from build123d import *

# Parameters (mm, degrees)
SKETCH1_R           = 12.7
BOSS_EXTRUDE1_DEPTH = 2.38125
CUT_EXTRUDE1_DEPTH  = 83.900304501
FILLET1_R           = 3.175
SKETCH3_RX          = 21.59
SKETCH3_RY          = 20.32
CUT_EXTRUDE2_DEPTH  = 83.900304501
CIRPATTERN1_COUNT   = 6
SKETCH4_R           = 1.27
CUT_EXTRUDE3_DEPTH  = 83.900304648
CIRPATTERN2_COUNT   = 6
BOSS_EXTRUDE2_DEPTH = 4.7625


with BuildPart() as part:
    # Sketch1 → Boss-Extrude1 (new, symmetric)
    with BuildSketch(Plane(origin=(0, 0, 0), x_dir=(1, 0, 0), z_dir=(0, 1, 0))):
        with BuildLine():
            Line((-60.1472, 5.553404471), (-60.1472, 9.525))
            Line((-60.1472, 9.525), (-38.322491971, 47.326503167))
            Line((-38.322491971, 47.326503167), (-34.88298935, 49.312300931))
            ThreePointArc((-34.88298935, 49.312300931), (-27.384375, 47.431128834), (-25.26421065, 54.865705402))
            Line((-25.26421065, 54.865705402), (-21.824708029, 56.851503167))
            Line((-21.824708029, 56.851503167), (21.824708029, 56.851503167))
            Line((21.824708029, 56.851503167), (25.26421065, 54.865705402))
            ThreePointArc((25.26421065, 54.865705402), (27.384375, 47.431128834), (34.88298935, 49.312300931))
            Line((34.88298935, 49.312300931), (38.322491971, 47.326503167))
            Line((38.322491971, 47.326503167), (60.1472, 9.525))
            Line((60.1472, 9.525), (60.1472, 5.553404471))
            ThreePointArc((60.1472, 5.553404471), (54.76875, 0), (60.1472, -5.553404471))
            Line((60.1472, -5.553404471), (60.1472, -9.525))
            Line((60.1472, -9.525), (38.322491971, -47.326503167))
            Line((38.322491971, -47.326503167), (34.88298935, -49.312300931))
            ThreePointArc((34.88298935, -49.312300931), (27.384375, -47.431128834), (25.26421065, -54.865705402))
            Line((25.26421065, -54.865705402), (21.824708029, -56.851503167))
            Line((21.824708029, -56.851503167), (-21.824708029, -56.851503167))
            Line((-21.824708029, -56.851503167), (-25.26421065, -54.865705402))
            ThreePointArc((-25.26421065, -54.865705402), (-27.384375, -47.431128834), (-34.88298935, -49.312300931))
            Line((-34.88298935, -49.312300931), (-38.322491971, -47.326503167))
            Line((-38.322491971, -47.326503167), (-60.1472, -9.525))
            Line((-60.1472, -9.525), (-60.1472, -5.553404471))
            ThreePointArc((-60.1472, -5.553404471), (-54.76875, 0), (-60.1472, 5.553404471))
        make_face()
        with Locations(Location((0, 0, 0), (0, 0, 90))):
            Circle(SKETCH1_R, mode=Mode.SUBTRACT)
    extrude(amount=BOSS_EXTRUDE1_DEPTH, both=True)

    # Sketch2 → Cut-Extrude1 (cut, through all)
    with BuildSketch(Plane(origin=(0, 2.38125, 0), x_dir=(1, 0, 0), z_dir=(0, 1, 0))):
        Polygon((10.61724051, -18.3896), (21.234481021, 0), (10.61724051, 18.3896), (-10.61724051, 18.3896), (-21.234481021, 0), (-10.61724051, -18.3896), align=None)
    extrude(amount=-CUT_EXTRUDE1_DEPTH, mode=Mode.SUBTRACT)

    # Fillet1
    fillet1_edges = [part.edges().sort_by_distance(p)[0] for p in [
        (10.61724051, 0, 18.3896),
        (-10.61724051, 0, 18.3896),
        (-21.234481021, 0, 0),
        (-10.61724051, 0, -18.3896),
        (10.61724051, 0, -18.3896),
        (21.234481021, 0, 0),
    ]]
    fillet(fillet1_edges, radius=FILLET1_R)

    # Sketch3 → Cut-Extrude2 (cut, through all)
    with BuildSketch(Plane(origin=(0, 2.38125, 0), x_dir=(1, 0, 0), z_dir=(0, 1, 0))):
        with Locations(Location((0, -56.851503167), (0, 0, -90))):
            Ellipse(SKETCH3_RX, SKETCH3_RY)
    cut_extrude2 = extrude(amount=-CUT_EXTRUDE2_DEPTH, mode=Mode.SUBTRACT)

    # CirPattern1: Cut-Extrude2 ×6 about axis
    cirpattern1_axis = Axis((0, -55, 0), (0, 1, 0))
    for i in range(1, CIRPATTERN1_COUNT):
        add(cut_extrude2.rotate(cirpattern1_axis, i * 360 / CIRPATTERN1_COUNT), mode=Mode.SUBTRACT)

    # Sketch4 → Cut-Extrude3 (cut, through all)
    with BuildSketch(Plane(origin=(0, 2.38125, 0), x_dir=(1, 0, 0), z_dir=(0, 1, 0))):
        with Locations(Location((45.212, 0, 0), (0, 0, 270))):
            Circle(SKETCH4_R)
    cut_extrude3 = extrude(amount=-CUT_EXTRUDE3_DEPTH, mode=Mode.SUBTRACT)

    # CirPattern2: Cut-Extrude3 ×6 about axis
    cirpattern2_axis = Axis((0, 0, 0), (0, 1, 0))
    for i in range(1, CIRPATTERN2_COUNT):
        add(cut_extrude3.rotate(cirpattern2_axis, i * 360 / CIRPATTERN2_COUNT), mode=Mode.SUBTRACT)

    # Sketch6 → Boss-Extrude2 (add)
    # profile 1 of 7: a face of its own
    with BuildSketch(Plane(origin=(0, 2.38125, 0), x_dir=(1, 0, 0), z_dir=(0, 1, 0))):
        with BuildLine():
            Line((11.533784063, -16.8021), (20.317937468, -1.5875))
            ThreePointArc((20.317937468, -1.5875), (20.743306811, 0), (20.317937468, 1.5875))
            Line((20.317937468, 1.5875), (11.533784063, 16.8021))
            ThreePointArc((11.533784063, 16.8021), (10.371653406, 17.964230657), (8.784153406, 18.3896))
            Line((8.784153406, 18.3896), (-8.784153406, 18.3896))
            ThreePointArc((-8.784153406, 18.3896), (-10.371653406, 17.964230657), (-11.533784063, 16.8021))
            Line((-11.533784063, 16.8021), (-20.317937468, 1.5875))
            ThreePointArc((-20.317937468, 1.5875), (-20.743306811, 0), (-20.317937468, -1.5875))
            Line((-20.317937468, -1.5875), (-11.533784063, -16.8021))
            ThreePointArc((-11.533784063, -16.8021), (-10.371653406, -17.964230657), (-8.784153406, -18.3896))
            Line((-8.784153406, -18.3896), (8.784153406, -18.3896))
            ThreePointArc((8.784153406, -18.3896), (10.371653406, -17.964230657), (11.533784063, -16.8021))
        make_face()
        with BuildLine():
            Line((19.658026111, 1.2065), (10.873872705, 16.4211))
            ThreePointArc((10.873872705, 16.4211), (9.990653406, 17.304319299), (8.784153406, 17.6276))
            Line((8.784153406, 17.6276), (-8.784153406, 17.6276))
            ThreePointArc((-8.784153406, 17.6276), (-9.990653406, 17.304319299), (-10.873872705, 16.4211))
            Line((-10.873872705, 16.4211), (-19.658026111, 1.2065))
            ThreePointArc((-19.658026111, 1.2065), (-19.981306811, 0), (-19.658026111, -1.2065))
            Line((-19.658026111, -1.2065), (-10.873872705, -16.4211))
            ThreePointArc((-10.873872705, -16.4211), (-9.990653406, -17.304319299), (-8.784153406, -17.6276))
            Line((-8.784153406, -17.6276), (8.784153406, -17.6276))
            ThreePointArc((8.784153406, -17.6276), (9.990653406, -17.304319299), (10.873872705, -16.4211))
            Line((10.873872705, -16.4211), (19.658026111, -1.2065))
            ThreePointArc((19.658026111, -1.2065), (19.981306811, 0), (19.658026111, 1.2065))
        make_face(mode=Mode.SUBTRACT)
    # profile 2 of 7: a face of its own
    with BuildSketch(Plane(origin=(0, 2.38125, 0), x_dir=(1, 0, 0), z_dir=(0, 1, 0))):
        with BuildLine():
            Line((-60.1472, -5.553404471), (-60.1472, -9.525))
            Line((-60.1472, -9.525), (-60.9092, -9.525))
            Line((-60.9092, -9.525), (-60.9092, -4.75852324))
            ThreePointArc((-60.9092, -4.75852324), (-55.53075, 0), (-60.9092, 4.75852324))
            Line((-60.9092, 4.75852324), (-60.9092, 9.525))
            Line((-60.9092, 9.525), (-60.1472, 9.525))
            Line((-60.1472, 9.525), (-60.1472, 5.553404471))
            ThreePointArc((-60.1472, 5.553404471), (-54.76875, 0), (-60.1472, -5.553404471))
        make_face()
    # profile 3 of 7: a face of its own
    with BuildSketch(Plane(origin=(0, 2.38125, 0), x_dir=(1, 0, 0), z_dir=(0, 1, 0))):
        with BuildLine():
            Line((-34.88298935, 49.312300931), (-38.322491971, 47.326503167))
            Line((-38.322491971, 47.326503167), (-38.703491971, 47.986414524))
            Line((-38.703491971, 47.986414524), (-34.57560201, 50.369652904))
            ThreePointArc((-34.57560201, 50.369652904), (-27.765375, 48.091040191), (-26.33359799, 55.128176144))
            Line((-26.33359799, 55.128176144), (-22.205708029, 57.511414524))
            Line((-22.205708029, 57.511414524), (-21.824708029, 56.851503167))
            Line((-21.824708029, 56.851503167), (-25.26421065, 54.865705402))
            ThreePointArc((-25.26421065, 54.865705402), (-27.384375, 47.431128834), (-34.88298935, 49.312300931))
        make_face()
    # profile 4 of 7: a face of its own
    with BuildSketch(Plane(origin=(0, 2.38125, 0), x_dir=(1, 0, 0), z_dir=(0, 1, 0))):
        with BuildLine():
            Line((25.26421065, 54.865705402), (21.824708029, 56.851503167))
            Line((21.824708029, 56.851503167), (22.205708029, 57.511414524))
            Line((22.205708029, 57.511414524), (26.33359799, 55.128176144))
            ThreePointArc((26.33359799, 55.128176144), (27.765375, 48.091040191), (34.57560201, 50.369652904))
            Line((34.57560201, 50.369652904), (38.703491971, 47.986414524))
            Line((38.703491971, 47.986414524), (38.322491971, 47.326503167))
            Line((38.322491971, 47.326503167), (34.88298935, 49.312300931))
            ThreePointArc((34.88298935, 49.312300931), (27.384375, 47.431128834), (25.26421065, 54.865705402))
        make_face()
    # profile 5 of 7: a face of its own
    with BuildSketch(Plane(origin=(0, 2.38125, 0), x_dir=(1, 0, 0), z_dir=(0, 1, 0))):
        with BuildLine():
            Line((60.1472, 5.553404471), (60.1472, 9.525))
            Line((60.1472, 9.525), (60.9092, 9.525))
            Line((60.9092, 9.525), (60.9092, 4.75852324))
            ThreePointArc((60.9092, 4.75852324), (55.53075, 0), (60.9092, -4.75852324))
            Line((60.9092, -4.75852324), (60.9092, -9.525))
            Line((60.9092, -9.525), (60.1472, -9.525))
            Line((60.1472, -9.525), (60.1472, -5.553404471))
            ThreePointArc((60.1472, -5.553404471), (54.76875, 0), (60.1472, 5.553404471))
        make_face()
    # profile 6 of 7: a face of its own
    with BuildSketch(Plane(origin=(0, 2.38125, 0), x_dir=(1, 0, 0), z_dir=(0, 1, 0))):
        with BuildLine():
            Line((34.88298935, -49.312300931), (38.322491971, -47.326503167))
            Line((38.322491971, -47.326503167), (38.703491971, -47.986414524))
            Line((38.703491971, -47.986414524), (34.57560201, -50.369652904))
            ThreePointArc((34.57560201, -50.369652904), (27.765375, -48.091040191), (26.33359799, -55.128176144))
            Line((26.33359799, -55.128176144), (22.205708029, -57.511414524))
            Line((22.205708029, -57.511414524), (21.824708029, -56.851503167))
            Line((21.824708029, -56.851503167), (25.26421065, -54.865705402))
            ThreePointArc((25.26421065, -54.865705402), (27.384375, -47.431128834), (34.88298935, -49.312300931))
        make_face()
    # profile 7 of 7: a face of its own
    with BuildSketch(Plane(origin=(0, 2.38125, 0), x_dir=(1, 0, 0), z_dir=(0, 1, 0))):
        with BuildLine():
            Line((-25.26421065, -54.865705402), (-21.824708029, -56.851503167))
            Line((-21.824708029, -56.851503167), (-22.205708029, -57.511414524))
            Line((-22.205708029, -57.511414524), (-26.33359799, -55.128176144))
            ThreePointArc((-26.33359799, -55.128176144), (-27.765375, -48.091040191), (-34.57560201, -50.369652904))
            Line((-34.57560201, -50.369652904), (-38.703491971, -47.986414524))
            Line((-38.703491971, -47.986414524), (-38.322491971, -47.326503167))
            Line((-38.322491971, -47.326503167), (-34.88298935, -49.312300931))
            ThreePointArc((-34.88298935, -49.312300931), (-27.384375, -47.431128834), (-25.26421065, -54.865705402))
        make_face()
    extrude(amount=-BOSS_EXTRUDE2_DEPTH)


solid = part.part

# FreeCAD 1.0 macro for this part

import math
import FreeCAD as App
import Part
import Sketcher
from FreeCAD import Vector
Q = App.Units.Quantity


def edges_at(feature, points):
    """Names of the edges that pass closest to the given points."""
    edges = feature.Shape.Edges
    near = lambda p: min(range(len(edges)), key=lambda i: edges[i].distToShape(Part.Vertex(*p))[0])
    return sorted({f"Edge{near(p) + 1}" for p in points})

doc = App.newDocument("Part")
params = doc.addObject("Spreadsheet::Sheet", "Params")
for row, (alias, value) in enumerate([
    ("sketch1_diameter", "1 in"),
    ("sketch1_radius", "0.21875 in"),
    ("pad1_length", "0.1875 in"),
    ("fillet_radius", "0.125 in"),
    ("sketch4_diameter", "0.1 in"),
    ("sketch5_radius", "0.125 in"),
    ("sketch5_radius2", "0.095 in"),
    ("sketch5_radius3", "0.21875 in"),
    ("sketch5_width", "0.03 in"),
    ("sketch5_length", "0.03 in"),
    ("pad2_length", "0.1875 in"),
], start=1):
    params.set(f"A{row}", alias)
    params.set(f"B{row}", "=" + value)
    params.setAlias(f"B{row}", alias)

body = doc.addObject("PartDesign::Body", "Body")

sketch1 = body.newObject("Sketcher::SketchObject", "Sketch")
sketch1.AttachmentSupport = (doc.getObject("XZ_Plane"), [""])
sketch1.MapMode = "FlatFace"
sketch1.addGeometry(Part.LineSegment(Vector(-60.1472, -9.525, 0), Vector(-60.1472, -5.553404, 0)), False)
sketch1.addGeometry(Part.ArcOfCircle(Part.Circle(Vector(-60.325, 0, 0), Vector(0, 0, 1), 5.55625), math.radians(-88.166222), math.radians(88.166222)), False)
sketch1.addGeometry(Part.LineSegment(Vector(-60.1472, 5.553404, 0), Vector(-60.1472, 9.525, 0)), False)
sketch1.addGeometry(Part.LineSegment(Vector(-60.1472, 9.525, 0), Vector(-38.322492, 47.326503, 0)), False)
sketch1.addGeometry(Part.LineSegment(Vector(-38.322492, 47.326503, 0), Vector(-34.882989, 49.312301, 0)), False)
sketch1.addGeometry(Part.ArcOfCircle(Part.Circle(Vector(-30.1625, 52.242982, 0), Vector(0, 0, 1), 5.55625), math.radians(-148.166222), math.radians(28.166222)), False)
sketch1.addGeometry(Part.LineSegment(Vector(-25.264211, 54.865705, 0), Vector(-21.824708, 56.851503, 0)), False)
sketch1.addGeometry(Part.LineSegment(Vector(-21.824708, 56.851503, 0), Vector(21.824708, 56.851503, 0)), False)
sketch1.addGeometry(Part.LineSegment(Vector(21.824708, 56.851503, 0), Vector(25.264211, 54.865705, 0)), False)
sketch1.addGeometry(Part.ArcOfCircle(Part.Circle(Vector(30.1625, 52.242982, 0), Vector(0, 0, 1), 5.55625), math.radians(151.833778), math.radians(328.166222)), False)
sketch1.addGeometry(Part.LineSegment(Vector(34.882989, 49.312301, 0), Vector(38.322492, 47.326503, 0)), False)
sketch1.addGeometry(Part.LineSegment(Vector(38.322492, 47.326503, 0), Vector(60.1472, 9.525, 0)), False)
sketch1.addGeometry(Part.LineSegment(Vector(60.1472, 9.525, 0), Vector(60.1472, 5.553404, 0)), False)
sketch1.addGeometry(Part.ArcOfCircle(Part.Circle(Vector(60.325, 0, 0), Vector(0, 0, 1), 5.55625), math.radians(91.833778), math.radians(268.166222)), False)
sketch1.addGeometry(Part.LineSegment(Vector(60.1472, -5.553404, 0), Vector(60.1472, -9.525, 0)), False)
sketch1.addGeometry(Part.LineSegment(Vector(60.1472, -9.525, 0), Vector(38.322492, -47.326503, 0)), False)
sketch1.addGeometry(Part.LineSegment(Vector(38.322492, -47.326503, 0), Vector(34.882989, -49.312301, 0)), False)
sketch1.addGeometry(Part.ArcOfCircle(Part.Circle(Vector(30.1625, -52.242982, 0), Vector(0, 0, 1), 5.55625), math.radians(31.833778), math.radians(208.166222)), False)
sketch1.addGeometry(Part.LineSegment(Vector(25.264211, -54.865705, 0), Vector(21.824708, -56.851503, 0)), False)
sketch1.addGeometry(Part.LineSegment(Vector(21.824708, -56.851503, 0), Vector(-21.824708, -56.851503, 0)), False)
sketch1.addGeometry(Part.LineSegment(Vector(-21.824708, -56.851503, 0), Vector(-25.264211, -54.865705, 0)), False)
sketch1.addGeometry(Part.ArcOfCircle(Part.Circle(Vector(-30.1625, -52.242982, 0), Vector(0, 0, 1), 5.55625), math.radians(-28.166222), math.radians(148.166222)), False)
sketch1.addGeometry(Part.LineSegment(Vector(-34.882989, -49.312301, 0), Vector(-38.322492, -47.326503, 0)), False)
sketch1.addGeometry(Part.LineSegment(Vector(-38.322492, -47.326503, 0), Vector(-60.1472, -9.525, 0)), False)
sketch1.addGeometry(Part.Circle(Vector(0, 0, 0), Vector(0, 0, 1), 12.7), False)
sketch1.addConstraint(Sketcher.Constraint("Coincident", 0, 2, 1, 1))
sketch1.addConstraint(Sketcher.Constraint("Coincident", 1, 2, 2, 1))
sketch1.addConstraint(Sketcher.Constraint("Coincident", 2, 2, 3, 1))
sketch1.addConstraint(Sketcher.Constraint("Coincident", 3, 2, 4, 1))
sketch1.addConstraint(Sketcher.Constraint("Coincident", 4, 2, 5, 1))
sketch1.addConstraint(Sketcher.Constraint("Coincident", 5, 2, 6, 1))
sketch1.addConstraint(Sketcher.Constraint("Coincident", 6, 2, 7, 1))
sketch1.addConstraint(Sketcher.Constraint("Coincident", 7, 2, 8, 1))
sketch1.addConstraint(Sketcher.Constraint("Coincident", 8, 2, 9, 1))
sketch1.addConstraint(Sketcher.Constraint("Coincident", 9, 2, 10, 1))
sketch1.addConstraint(Sketcher.Constraint("Coincident", 10, 2, 11, 1))
sketch1.addConstraint(Sketcher.Constraint("Coincident", 11, 2, 12, 1))
sketch1.addConstraint(Sketcher.Constraint("Coincident", 12, 2, 13, 1))
sketch1.addConstraint(Sketcher.Constraint("Coincident", 13, 2, 14, 1))
sketch1.addConstraint(Sketcher.Constraint("Coincident", 14, 2, 15, 1))
sketch1.addConstraint(Sketcher.Constraint("Coincident", 15, 2, 16, 1))
sketch1.addConstraint(Sketcher.Constraint("Coincident", 16, 2, 17, 1))
sketch1.addConstraint(Sketcher.Constraint("Coincident", 17, 2, 18, 1))
sketch1.addConstraint(Sketcher.Constraint("Coincident", 18, 2, 19, 1))
sketch1.addConstraint(Sketcher.Constraint("Coincident", 19, 2, 20, 1))
sketch1.addConstraint(Sketcher.Constraint("Coincident", 20, 2, 21, 1))
sketch1.addConstraint(Sketcher.Constraint("Coincident", 21, 2, 22, 1))
sketch1.addConstraint(Sketcher.Constraint("Coincident", 22, 2, 23, 1))
sketch1.addConstraint(Sketcher.Constraint("Coincident", 23, 2, 0, 1))
sketch1.addConstraint(Sketcher.Constraint("Vertical", 0))
sketch1.addConstraint(Sketcher.Constraint("Vertical", 2))
sketch1.addConstraint(Sketcher.Constraint("Horizontal", 7))
sketch1.addConstraint(Sketcher.Constraint("Vertical", 12))
sketch1.addConstraint(Sketcher.Constraint("Vertical", 14))
sketch1.addConstraint(Sketcher.Constraint("Horizontal", 19))
sketch1.addConstraint(Sketcher.Constraint("Coincident", 24, 3, -1, 1))
sketch1.addConstraint(Sketcher.Constraint("Equal", 1, 5))
sketch1.addConstraint(Sketcher.Constraint("Equal", 5, 9))
sketch1.addConstraint(Sketcher.Constraint("Equal", 9, 13))
sketch1.addConstraint(Sketcher.Constraint("Equal", 13, 17))
sketch1.addConstraint(Sketcher.Constraint("Equal", 17, 21))
sketch1.addConstraint(Sketcher.Constraint("Symmetric", 1, 3, 13, 3, -1, 1))
sketch1.addConstraint(Sketcher.Constraint("Symmetric", 5, 3, 17, 3, -1, 1))
sketch1.addConstraint(Sketcher.Constraint("Symmetric", 9, 3, 21, 3, -1, 1))
sketch1.addConstraint(Sketcher.Constraint("Symmetric", 2, 2, 14, 2, -1, 1))
sketch1.addConstraint(Sketcher.Constraint("Symmetric", 3, 2, 15, 2, -1, 1))
sketch1.addConstraint(Sketcher.Constraint("Symmetric", 6, 2, 18, 2, -1, 1))
sketch1.addConstraint(Sketcher.Constraint("Symmetric", 10, 2, 22, 2, -1, 1))
sketch1.addConstraint(Sketcher.Constraint("Symmetric", 11, 2, 23, 2, -1, 1))
sketch1.addConstraint(Sketcher.Constraint("Symmetric", 5, 3, 9, 3, -2))
sketch1.addConstraint(Sketcher.Constraint("Symmetric", 3, 2, 10, 2, -2))
sketch1.addConstraint(Sketcher.Constraint("Symmetric", 2, 2, 11, 2, -2))
sketch1.addConstraint(Sketcher.Constraint("PointOnObject", 1, 3, -1))
sketch1.addConstraint(Sketcher.Constraint("Parallel", 4, 6))
sketch1.addConstraint(Sketcher.Constraint("Perpendicular", 3, 8))
sketch1.addConstraint(Sketcher.Constraint("Parallel", 8, 10))
sketch1.addConstraint(Sketcher.Constraint("Perpendicular", 6, 11))
sketch1.addConstraint(Sketcher.Constraint("Perpendicular", 11, 16))
sketch1.addConstraint(Sketcher.Constraint("Parallel", 16, 18))
sketch1.addConstraint(Sketcher.Constraint("Perpendicular", 15, 20))
sketch1.addConstraint(Sketcher.Constraint("Parallel", 20, 22))
sketch1.addConstraint(Sketcher.Constraint("Horizontal", 5, 2, 8, 2))
sketch1.addConstraint(Sketcher.Constraint("Horizontal", 17, 2, 20, 2))
sketch1.addConstraint(Sketcher.Constraint("Equal", 4, 6))
sketch1.addConstraint(Sketcher.Constraint("Diameter", 24, Q("1 in")))
sketch1.addConstraint(Sketcher.Constraint("Angle", 3, Q("60 deg")))
sketch1.addConstraint(Sketcher.Constraint("Radius", 1, Q("0.21875 in")))
sketch1.addConstraint(Sketcher.Constraint("DistanceX", 1, 3, 13, 3, Q("4.75 in")))
sketch1.addConstraint(Sketcher.Constraint("DistanceY", 14, 2, 11, 2, Q("0.75 in")))
sketch1.addConstraint(Sketcher.Constraint("DistanceX", 5, 3, -1, 1, Q("1.1875 in")))
sketch1.addConstraint(Sketcher.Constraint("DistanceX", 0, 2, -1, 1, Q("2.368 in")))
sketch1.addConstraint(Sketcher.Constraint("DistanceY", 3, 2, 6, 2, Q("0.375 in")))
sketch1.addConstraint(Sketcher.Constraint("DistanceY", -1, 1, 4, 2, Q("49.312301 mm")))
sketch1.addConstraint(Sketcher.Constraint("DistanceY", 1, 2, 3, 2, Q("41.773099 mm")))
sketch1.setExpression("Constraints[59]", "Params.sketch1_diameter")
sketch1.setExpression("Constraints[61]", "Params.sketch1_radius")
pad1 = body.newObject("PartDesign::Pad", "Pad")
pad1.Profile = sketch1
pad1.setExpression("Length", "Params.pad1_length")
pad1.Midplane = True

sketch2 = body.newObject("Sketcher::SketchObject", "Sketch001")
sketch2.AttachmentSupport = (doc.getObject("XZ_Plane"), [""])
sketch2.MapMode = "FlatFace"
sketch2.AttachmentOffset = App.Placement(Vector(0, 0, -0.09375 * 25.4), App.Rotation())
sketch2.addGeometry(Part.LineSegment(Vector(10.617241, 18.3896, 0), Vector(21.234481, 0, 0)), False)
sketch2.addGeometry(Part.LineSegment(Vector(21.234481, 0, 0), Vector(10.617241, -18.3896, 0)), False)
sketch2.addGeometry(Part.LineSegment(Vector(10.617241, -18.3896, 0), Vector(-10.617241, -18.3896, 0)), False)
sketch2.addGeometry(Part.LineSegment(Vector(-10.617241, -18.3896, 0), Vector(-21.234481, 0, 0)), False)
sketch2.addGeometry(Part.LineSegment(Vector(-21.234481, 0, 0), Vector(-10.617241, 18.3896, 0)), False)
sketch2.addGeometry(Part.LineSegment(Vector(-10.617241, 18.3896, 0), Vector(10.617241, 18.3896, 0)), False)
sketch2.addConstraint(Sketcher.Constraint("Coincident", 0, 2, 1, 1))
sketch2.addConstraint(Sketcher.Constraint("Coincident", 1, 2, 2, 1))
sketch2.addConstraint(Sketcher.Constraint("Coincident", 2, 2, 3, 1))
sketch2.addConstraint(Sketcher.Constraint("Coincident", 3, 2, 4, 1))
sketch2.addConstraint(Sketcher.Constraint("Coincident", 4, 2, 5, 1))
sketch2.addConstraint(Sketcher.Constraint("Coincident", 5, 2, 0, 1))
sketch2.addConstraint(Sketcher.Constraint("Horizontal", 2))
sketch2.addConstraint(Sketcher.Constraint("Horizontal", 5))
sketch2.addConstraint(Sketcher.Constraint("Symmetric", 0, 2, 3, 2, -1, 1))
sketch2.addConstraint(Sketcher.Constraint("Symmetric", 1, 2, 4, 2, -1, 1))
sketch2.addConstraint(Sketcher.Constraint("PointOnObject", 0, 2, -1))
sketch2.addConstraint(Sketcher.Constraint("Parallel", 0, 3))
sketch2.addConstraint(Sketcher.Constraint("Vertical", 2, 2, 4, 2))
sketch2.addConstraint(Sketcher.Constraint("Angle", 0, Q("-60 deg")))
sketch2.addConstraint(Sketcher.Constraint("DistanceY", 1, 2, -1, 1, Q("0.724 in")))
sketch2.addConstraint(Sketcher.Constraint("DistanceX", 2, 2, 2, 1, Q("21.234481 mm")))
pocket1 = body.newObject("PartDesign::Pocket", "Pocket")
pocket1.Profile = sketch2
pocket1.Type = "ThroughAll"
pocket1.Reversed = True
doc.recompute()

fillet = body.newObject("PartDesign::Fillet", "Fillet")
fillet.Base = (pocket1, edges_at(pocket1, [
    (10.617, 0, 18.39),
    (-10.617, 0, 18.39),
    (-21.234, 0, 0),
    (-10.617, 0, -18.39),
    (10.617, 0, -18.39),
    (21.234, 0, 0),
]))
fillet.setExpression("Radius", "Params.fillet_radius")

sketch3 = body.newObject("Sketcher::SketchObject", "Sketch002")
sketch3.AttachmentSupport = (doc.getObject("XZ_Plane"), [""])
sketch3.MapMode = "FlatFace"
sketch3.AttachmentOffset = App.Placement(Vector(0, 0, -0.09375 * 25.4), App.Rotation())
sketch3.addGeometry(Part.Ellipse(Vector(0, 78.441503, 0), Vector(-20.32, 56.851503, 0), Vector(0, 56.851503, 0)), False)
sketch3.addConstraint(Sketcher.Constraint("Block", 0))
pocket2 = body.newObject("PartDesign::Pocket", "Pocket001")
pocket2.Profile = sketch3
pocket2.Type = "ThroughAll"
pocket2.Reversed = True
doc.recompute()

polarpattern = body.newObject("PartDesign::PolarPattern", "PolarPattern")
polarpattern.Originals = [pocket2]
polarpattern.Axis = (doc.getObject("Y_Axis"), [""])
polarpattern.Angle = 360
polarpattern.Occurrences = 6
body.Tip = polarpattern

sketch4 = body.newObject("Sketcher::SketchObject", "Sketch003")
sketch4.AttachmentSupport = (doc.getObject("XZ_Plane"), [""])
sketch4.MapMode = "FlatFace"
sketch4.AttachmentOffset = App.Placement(Vector(0, 0, -0.09375 * 25.4), App.Rotation())
sketch4.addGeometry(Part.Circle(Vector(45.212, 0, 0), Vector(0, 0, 1), 1.27), False)
sketch4.addConstraint(Sketcher.Constraint("PointOnObject", 0, 3, -1))
sketch4.addConstraint(Sketcher.Constraint("Diameter", 0, Q("0.1 in")))
sketch4.addConstraint(Sketcher.Constraint("DistanceX", -1, 1, 0, 3, Q("1.78 in")))
sketch4.setExpression("Constraints[1]", "Params.sketch4_diameter")
pocket3 = body.newObject("PartDesign::Pocket", "Pocket002")
pocket3.Profile = sketch4
pocket3.Type = "ThroughAll"
pocket3.Reversed = True
doc.recompute()

polarpattern2 = body.newObject("PartDesign::PolarPattern", "PolarPattern001")
polarpattern2.Originals = [pocket3]
polarpattern2.Axis = (doc.getObject("Y_Axis"), [""])
polarpattern2.Angle = 360
polarpattern2.Occurrences = 6
body.Tip = polarpattern2

sketch5 = body.newObject("Sketcher::SketchObject", "Sketch004")
sketch5.AttachmentSupport = (doc.getObject("XZ_Plane"), [""])
sketch5.MapMode = "FlatFace"
sketch5.AttachmentOffset = App.Placement(Vector(0, 0, -0.09375 * 25.4), App.Rotation())
sketch5.addGeometry(Part.LineSegment(Vector(11.533784, 16.8021, 0), Vector(20.317937, 1.5875, 0)), False)
sketch5.addGeometry(Part.ArcOfCircle(Part.Circle(Vector(17.568307, 0, 0), Vector(0, 0, 1), 3.175), math.radians(-30), math.radians(30)), False)
sketch5.addGeometry(Part.LineSegment(Vector(20.317937, -1.5875, 0), Vector(11.533784, -16.8021, 0)), False)
sketch5.addGeometry(Part.ArcOfCircle(Part.Circle(Vector(8.784153, -15.2146, 0), Vector(0, 0, 1), 3.175), math.radians(-90), math.radians(-30)), False)
sketch5.addGeometry(Part.LineSegment(Vector(8.784153, -18.3896, 0), Vector(-8.784153, -18.3896, 0)), False)
sketch5.addGeometry(Part.ArcOfCircle(Part.Circle(Vector(-8.784153, -15.2146, 0), Vector(0, 0, 1), 3.175), math.radians(-150), math.radians(-90)), False)
sketch5.addGeometry(Part.LineSegment(Vector(-11.533784, -16.8021, 0), Vector(-20.317937, -1.5875, 0)), False)
sketch5.addGeometry(Part.ArcOfCircle(Part.Circle(Vector(-17.568307, 0, 0), Vector(0, 0, 1), 3.175), math.radians(150), math.radians(210)), False)
sketch5.addGeometry(Part.LineSegment(Vector(-20.317937, 1.5875, 0), Vector(-11.533784, 16.8021, 0)), False)
sketch5.addGeometry(Part.ArcOfCircle(Part.Circle(Vector(-8.784153, 15.2146, 0), Vector(0, 0, 1), 3.175), math.radians(90), math.radians(150)), False)
sketch5.addGeometry(Part.LineSegment(Vector(-8.784153, 18.3896, 0), Vector(8.784153, 18.3896, 0)), False)
sketch5.addGeometry(Part.ArcOfCircle(Part.Circle(Vector(8.784153, 15.2146, 0), Vector(0, 0, 1), 3.175), math.radians(30), math.radians(90)), False)
sketch5.addGeometry(Part.LineSegment(Vector(10.873873, -16.4211, 0), Vector(19.658026, -1.2065, 0)), False)
sketch5.addGeometry(Part.ArcOfCircle(Part.Circle(Vector(17.568307, 0, 0), Vector(0, 0, 1), 2.413), math.radians(-30), math.radians(30)), False)
sketch5.addGeometry(Part.LineSegment(Vector(19.658026, 1.2065, 0), Vector(10.873873, 16.4211, 0)), False)
sketch5.addGeometry(Part.ArcOfCircle(Part.Circle(Vector(8.784153, 15.2146, 0), Vector(0, 0, 1), 2.413), math.radians(30), math.radians(90)), False)
sketch5.addGeometry(Part.LineSegment(Vector(8.784153, 17.6276, 0), Vector(-8.784153, 17.6276, 0)), False)
sketch5.addGeometry(Part.ArcOfCircle(Part.Circle(Vector(-8.784153, 15.2146, 0), Vector(0, 0, 1), 2.413), math.radians(90), math.radians(150)), False)
sketch5.addGeometry(Part.LineSegment(Vector(-10.873873, 16.4211, 0), Vector(-19.658026, 1.2065, 0)), False)
sketch5.addGeometry(Part.ArcOfCircle(Part.Circle(Vector(-17.568307, 0, 0), Vector(0, 0, 1), 2.413), math.radians(150), math.radians(210)), False)
sketch5.addGeometry(Part.LineSegment(Vector(-19.658026, -1.2065, 0), Vector(-10.873873, -16.4211, 0)), False)
sketch5.addGeometry(Part.ArcOfCircle(Part.Circle(Vector(-8.784153, -15.2146, 0), Vector(0, 0, 1), 2.413), math.radians(-150), math.radians(-90)), False)
sketch5.addGeometry(Part.LineSegment(Vector(-8.784153, -17.6276, 0), Vector(8.784153, -17.6276, 0)), False)
sketch5.addGeometry(Part.ArcOfCircle(Part.Circle(Vector(8.784153, -15.2146, 0), Vector(0, 0, 1), 2.413), math.radians(-90), math.radians(-30)), False)
sketch5.addGeometry(Part.LineSegment(Vector(-60.1472, 9.525, 0), Vector(-60.1472, 5.553404, 0)), False)
sketch5.addGeometry(Part.ArcOfCircle(Part.Circle(Vector(-60.325, 0, 0), Vector(0, 0, 1), 5.55625), math.radians(-88.166222), math.radians(88.166222)), False)
sketch5.addGeometry(Part.LineSegment(Vector(-60.1472, -5.553404, 0), Vector(-60.1472, -9.525, 0)), False)
sketch5.addGeometry(Part.LineSegment(Vector(-60.1472, -9.525, 0), Vector(-60.9092, -9.525, 0)), False)
sketch5.addGeometry(Part.LineSegment(Vector(-60.9092, -9.525, 0), Vector(-60.9092, -4.758523, 0)), False)
sketch5.addGeometry(Part.ArcOfCircle(Part.Circle(Vector(-60.325, 0, 0), Vector(0, 0, 1), 4.79425), math.radians(-96.999132), math.radians(96.999132)), False)
sketch5.addGeometry(Part.LineSegment(Vector(-60.9092, 4.758523, 0), Vector(-60.9092, 9.525, 0)), False)
sketch5.addGeometry(Part.LineSegment(Vector(-60.9092, 9.525, 0), Vector(-60.1472, 9.525, 0)), False)
sketch5.addGeometry(Part.LineSegment(Vector(-38.322492, -47.326503, 0), Vector(-34.882989, -49.312301, 0)), False)
sketch5.addGeometry(Part.ArcOfCircle(Part.Circle(Vector(-30.1625, -52.242982, 0), Vector(0, 0, 1), 5.55625), math.radians(-28.166222), math.radians(148.166222)), False)
sketch5.addGeometry(Part.LineSegment(Vector(-25.264211, -54.865705, 0), Vector(-21.824708, -56.851503, 0)), False)
sketch5.addGeometry(Part.LineSegment(Vector(-21.824708, -56.851503, 0), Vector(-22.205708, -57.511415, 0)), False)
sketch5.addGeometry(Part.LineSegment(Vector(-22.205708, -57.511415, 0), Vector(-26.333598, -55.128176, 0)), False)
sketch5.addGeometry(Part.ArcOfCircle(Part.Circle(Vector(-30.1625, -52.242982, 0), Vector(0, 0, 1), 4.79425), math.radians(-36.999132), math.radians(156.999132)), False)
sketch5.addGeometry(Part.LineSegment(Vector(-34.575602, -50.369653, 0), Vector(-38.703492, -47.986415, 0)), False)
sketch5.addGeometry(Part.LineSegment(Vector(-38.703492, -47.986415, 0), Vector(-38.322492, -47.326503, 0)), False)
sketch5.addGeometry(Part.LineSegment(Vector(21.824708, -56.851503, 0), Vector(25.264211, -54.865705, 0)), False)
sketch5.addGeometry(Part.ArcOfCircle(Part.Circle(Vector(30.1625, -52.242982, 0), Vector(0, 0, 1), 5.55625), math.radians(31.833778), math.radians(208.166222)), False)
sketch5.addGeometry(Part.LineSegment(Vector(34.882989, -49.312301, 0), Vector(38.322492, -47.326503, 0)), False)
sketch5.addGeometry(Part.LineSegment(Vector(38.322492, -47.326503, 0), Vector(38.703492, -47.986415, 0)), False)
sketch5.addGeometry(Part.LineSegment(Vector(38.703492, -47.986415, 0), Vector(34.575602, -50.369653, 0)), False)
sketch5.addGeometry(Part.ArcOfCircle(Part.Circle(Vector(30.1625, -52.242982, 0), Vector(0, 0, 1), 4.79425), math.radians(23.000868), math.radians(216.999132)), False)
sketch5.addGeometry(Part.LineSegment(Vector(26.333598, -55.128176, 0), Vector(22.205708, -57.511415, 0)), False)
sketch5.addGeometry(Part.LineSegment(Vector(22.205708, -57.511415, 0), Vector(21.824708, -56.851503, 0)), False)
sketch5.addGeometry(Part.LineSegment(Vector(60.1472, -9.525, 0), Vector(60.1472, -5.553404, 0)), False)
sketch5.addGeometry(Part.ArcOfCircle(Part.Circle(Vector(60.325, 0, 0), Vector(0, 0, 1), 5.55625), math.radians(91.833778), math.radians(268.166222)), False)
sketch5.addGeometry(Part.LineSegment(Vector(60.1472, 5.553404, 0), Vector(60.1472, 9.525, 0)), False)
sketch5.addGeometry(Part.LineSegment(Vector(60.1472, 9.525, 0), Vector(60.9092, 9.525, 0)), False)
sketch5.addGeometry(Part.LineSegment(Vector(60.9092, 9.525, 0), Vector(60.9092, 4.758523, 0)), False)
sketch5.addGeometry(Part.ArcOfCircle(Part.Circle(Vector(60.325, 0, 0), Vector(0, 0, 1), 4.79425), math.radians(83.000868), math.radians(276.999132)), False)
sketch5.addGeometry(Part.LineSegment(Vector(60.9092, -4.758523, 0), Vector(60.9092, -9.525, 0)), False)
sketch5.addGeometry(Part.LineSegment(Vector(60.9092, -9.525, 0), Vector(60.1472, -9.525, 0)), False)
sketch5.addGeometry(Part.LineSegment(Vector(38.322492, 47.326503, 0), Vector(34.882989, 49.312301, 0)), False)
sketch5.addGeometry(Part.ArcOfCircle(Part.Circle(Vector(30.1625, 52.242982, 0), Vector(0, 0, 1), 5.55625), math.radians(151.833778), math.radians(328.166222)), False)
sketch5.addGeometry(Part.LineSegment(Vector(25.264211, 54.865705, 0), Vector(21.824708, 56.851503, 0)), False)
sketch5.addGeometry(Part.LineSegment(Vector(21.824708, 56.851503, 0), Vector(22.205708, 57.511415, 0)), False)
sketch5.addGeometry(Part.LineSegment(Vector(22.205708, 57.511415, 0), Vector(26.333598, 55.128176, 0)), False)
sketch5.addGeometry(Part.ArcOfCircle(Part.Circle(Vector(30.1625, 52.242982, 0), Vector(0, 0, 1), 4.79425), math.radians(143.000868), math.radians(336.999132)), False)
sketch5.addGeometry(Part.LineSegment(Vector(34.575602, 50.369653, 0), Vector(38.703492, 47.986415, 0)), False)
sketch5.addGeometry(Part.LineSegment(Vector(38.703492, 47.986415, 0), Vector(38.322492, 47.326503, 0)), False)
sketch5.addGeometry(Part.LineSegment(Vector(-21.824708, 56.851503, 0), Vector(-25.264211, 54.865705, 0)), False)
sketch5.addGeometry(Part.ArcOfCircle(Part.Circle(Vector(-30.1625, 52.242982, 0), Vector(0, 0, 1), 5.55625), math.radians(-148.166222), math.radians(28.166222)), False)
sketch5.addGeometry(Part.LineSegment(Vector(-34.882989, 49.312301, 0), Vector(-38.322492, 47.326503, 0)), False)
sketch5.addGeometry(Part.LineSegment(Vector(-38.322492, 47.326503, 0), Vector(-38.703492, 47.986415, 0)), False)
sketch5.addGeometry(Part.LineSegment(Vector(-38.703492, 47.986415, 0), Vector(-34.575602, 50.369653, 0)), False)
sketch5.addGeometry(Part.ArcOfCircle(Part.Circle(Vector(-30.1625, 52.242982, 0), Vector(0, 0, 1), 4.79425), math.radians(-156.999132), math.radians(36.999132)), False)
sketch5.addGeometry(Part.LineSegment(Vector(-26.333598, 55.128176, 0), Vector(-22.205708, 57.511415, 0)), False)
sketch5.addGeometry(Part.LineSegment(Vector(-22.205708, 57.511415, 0), Vector(-21.824708, 56.851503, 0)), False)
sketch5.addConstraint(Sketcher.Constraint("Tangent", 0, 2, 1, 2))
sketch5.addConstraint(Sketcher.Constraint("Tangent", 1, 1, 2, 1))
sketch5.addConstraint(Sketcher.Constraint("Tangent", 2, 2, 3, 2))
sketch5.addConstraint(Sketcher.Constraint("Tangent", 3, 1, 4, 1))
sketch5.addConstraint(Sketcher.Constraint("Tangent", 4, 2, 5, 2))
sketch5.addConstraint(Sketcher.Constraint("Tangent", 5, 1, 6, 1))
sketch5.addConstraint(Sketcher.Constraint("Tangent", 6, 2, 7, 2))
sketch5.addConstraint(Sketcher.Constraint("Tangent", 7, 1, 8, 1))
sketch5.addConstraint(Sketcher.Constraint("Tangent", 8, 2, 9, 2))
sketch5.addConstraint(Sketcher.Constraint("Tangent", 9, 1, 10, 1))
sketch5.addConstraint(Sketcher.Constraint("Tangent", 10, 2, 11, 2))
sketch5.addConstraint(Sketcher.Constraint("Tangent", 11, 1, 0, 1))
sketch5.addConstraint(Sketcher.Constraint("Tangent", 12, 2, 13, 1))
sketch5.addConstraint(Sketcher.Constraint("Tangent", 13, 2, 14, 1))
sketch5.addConstraint(Sketcher.Constraint("Tangent", 14, 2, 15, 1))
sketch5.addConstraint(Sketcher.Constraint("Tangent", 15, 2, 16, 1))
sketch5.addConstraint(Sketcher.Constraint("Tangent", 16, 2, 17, 1))
sketch5.addConstraint(Sketcher.Constraint("Tangent", 17, 2, 18, 1))
sketch5.addConstraint(Sketcher.Constraint("Tangent", 18, 2, 19, 1))
sketch5.addConstraint(Sketcher.Constraint("Tangent", 19, 2, 20, 1))
sketch5.addConstraint(Sketcher.Constraint("Tangent", 20, 2, 21, 1))
sketch5.addConstraint(Sketcher.Constraint("Tangent", 21, 2, 22, 1))
sketch5.addConstraint(Sketcher.Constraint("Tangent", 22, 2, 23, 1))
sketch5.addConstraint(Sketcher.Constraint("Tangent", 23, 2, 12, 1))
sketch5.addConstraint(Sketcher.Constraint("Coincident", 24, 2, 25, 2))
sketch5.addConstraint(Sketcher.Constraint("Coincident", 25, 1, 26, 1))
sketch5.addConstraint(Sketcher.Constraint("Coincident", 26, 2, 27, 1))
sketch5.addConstraint(Sketcher.Constraint("Coincident", 27, 2, 28, 1))
sketch5.addConstraint(Sketcher.Constraint("Coincident", 28, 2, 29, 1))
sketch5.addConstraint(Sketcher.Constraint("Coincident", 29, 2, 30, 1))
sketch5.addConstraint(Sketcher.Constraint("Coincident", 30, 2, 31, 1))
sketch5.addConstraint(Sketcher.Constraint("Coincident", 31, 2, 24, 1))
sketch5.addConstraint(Sketcher.Constraint("Coincident", 32, 2, 33, 2))
sketch5.addConstraint(Sketcher.Constraint("Coincident", 33, 1, 34, 1))
sketch5.addConstraint(Sketcher.Constraint("Coincident", 34, 2, 35, 1))
sketch5.addConstraint(Sketcher.Constraint("Coincident", 35, 2, 36, 1))
sketch5.addConstraint(Sketcher.Constraint("Coincident", 36, 2, 37, 1))
sketch5.addConstraint(Sketcher.Constraint("Coincident", 37, 2, 38, 1))
sketch5.addConstraint(Sketcher.Constraint("Coincident", 38, 2, 39, 1))
sketch5.addConstraint(Sketcher.Constraint("Coincident", 39, 2, 32, 1))
sketch5.addConstraint(Sketcher.Constraint("Coincident", 40, 2, 41, 2))
sketch5.addConstraint(Sketcher.Constraint("Coincident", 41, 1, 42, 1))
sketch5.addConstraint(Sketcher.Constraint("Coincident", 42, 2, 43, 1))
sketch5.addConstraint(Sketcher.Constraint("Coincident", 43, 2, 44, 1))
sketch5.addConstraint(Sketcher.Constraint("Coincident", 44, 2, 45, 1))
sketch5.addConstraint(Sketcher.Constraint("Coincident", 45, 2, 46, 1))
sketch5.addConstraint(Sketcher.Constraint("Coincident", 46, 2, 47, 1))
sketch5.addConstraint(Sketcher.Constraint("Coincident", 47, 2, 40, 1))
sketch5.addConstraint(Sketcher.Constraint("Coincident", 48, 2, 49, 2))
sketch5.addConstraint(Sketcher.Constraint("Coincident", 49, 1, 50, 1))
sketch5.addConstraint(Sketcher.Constraint("Coincident", 50, 2, 51, 1))
sketch5.addConstraint(Sketcher.Constraint("Coincident", 51, 2, 52, 1))
sketch5.addConstraint(Sketcher.Constraint("Coincident", 52, 2, 53, 1))
sketch5.addConstraint(Sketcher.Constraint("Coincident", 53, 2, 54, 1))
sketch5.addConstraint(Sketcher.Constraint("Coincident", 54, 2, 55, 1))
sketch5.addConstraint(Sketcher.Constraint("Coincident", 55, 2, 48, 1))
sketch5.addConstraint(Sketcher.Constraint("Coincident", 56, 2, 57, 2))
sketch5.addConstraint(Sketcher.Constraint("Coincident", 57, 1, 58, 1))
sketch5.addConstraint(Sketcher.Constraint("Coincident", 58, 2, 59, 1))
sketch5.addConstraint(Sketcher.Constraint("Coincident", 59, 2, 60, 1))
sketch5.addConstraint(Sketcher.Constraint("Coincident", 60, 2, 61, 1))
sketch5.addConstraint(Sketcher.Constraint("Coincident", 61, 2, 62, 1))
sketch5.addConstraint(Sketcher.Constraint("Coincident", 62, 2, 63, 1))
sketch5.addConstraint(Sketcher.Constraint("Coincident", 63, 2, 56, 1))
sketch5.addConstraint(Sketcher.Constraint("Coincident", 64, 2, 65, 2))
sketch5.addConstraint(Sketcher.Constraint("Coincident", 65, 1, 66, 1))
sketch5.addConstraint(Sketcher.Constraint("Coincident", 66, 2, 67, 1))
sketch5.addConstraint(Sketcher.Constraint("Coincident", 67, 2, 68, 1))
sketch5.addConstraint(Sketcher.Constraint("Coincident", 68, 2, 69, 1))
sketch5.addConstraint(Sketcher.Constraint("Coincident", 69, 2, 70, 1))
sketch5.addConstraint(Sketcher.Constraint("Coincident", 70, 2, 71, 1))
sketch5.addConstraint(Sketcher.Constraint("Coincident", 71, 2, 64, 1))
sketch5.addConstraint(Sketcher.Constraint("Horizontal", 4))
sketch5.addConstraint(Sketcher.Constraint("Horizontal", 10))
sketch5.addConstraint(Sketcher.Constraint("Horizontal", 16))
sketch5.addConstraint(Sketcher.Constraint("Horizontal", 22))
sketch5.addConstraint(Sketcher.Constraint("Vertical", 24))
sketch5.addConstraint(Sketcher.Constraint("Vertical", 26))
sketch5.addConstraint(Sketcher.Constraint("Horizontal", 27))
sketch5.addConstraint(Sketcher.Constraint("Vertical", 28))
sketch5.addConstraint(Sketcher.Constraint("Vertical", 30))
sketch5.addConstraint(Sketcher.Constraint("Horizontal", 31))
sketch5.addConstraint(Sketcher.Constraint("Vertical", 48))
sketch5.addConstraint(Sketcher.Constraint("Vertical", 50))
sketch5.addConstraint(Sketcher.Constraint("Horizontal", 51))
sketch5.addConstraint(Sketcher.Constraint("Vertical", 52))
sketch5.addConstraint(Sketcher.Constraint("Vertical", 54))
sketch5.addConstraint(Sketcher.Constraint("Horizontal", 55))
sketch5.addConstraint(Sketcher.Constraint("Coincident", 13, 3, 1, 3))
sketch5.addConstraint(Sketcher.Constraint("Coincident", 15, 3, 11, 3))
sketch5.addConstraint(Sketcher.Constraint("Coincident", 17, 3, 9, 3))
sketch5.addConstraint(Sketcher.Constraint("Coincident", 19, 3, 7, 3))
sketch5.addConstraint(Sketcher.Constraint("Coincident", 21, 3, 5, 3))
sketch5.addConstraint(Sketcher.Constraint("Coincident", 23, 3, 3, 3))
sketch5.addConstraint(Sketcher.Constraint("Coincident", 29, 3, 25, 3))
sketch5.addConstraint(Sketcher.Constraint("Coincident", 37, 3, 33, 3))
sketch5.addConstraint(Sketcher.Constraint("Coincident", 45, 3, 41, 3))
sketch5.addConstraint(Sketcher.Constraint("Coincident", 53, 3, 49, 3))
sketch5.addConstraint(Sketcher.Constraint("Coincident", 61, 3, 57, 3))
sketch5.addConstraint(Sketcher.Constraint("Coincident", 69, 3, 65, 3))
sketch5.addConstraint(Sketcher.Constraint("Equal", 1, 3))
sketch5.addConstraint(Sketcher.Constraint("Equal", 3, 5))
sketch5.addConstraint(Sketcher.Constraint("Equal", 5, 7))
sketch5.addConstraint(Sketcher.Constraint("Equal", 7, 9))
sketch5.addConstraint(Sketcher.Constraint("Equal", 9, 11))
sketch5.addConstraint(Sketcher.Constraint("Equal", 13, 15))
sketch5.addConstraint(Sketcher.Constraint("Equal", 17, 19))
sketch5.addConstraint(Sketcher.Constraint("Equal", 19, 21))
sketch5.addConstraint(Sketcher.Constraint("Equal", 25, 33))
sketch5.addConstraint(Sketcher.Constraint("Equal", 29, 37))
sketch5.addConstraint(Sketcher.Constraint("Equal", 33, 41))
sketch5.addConstraint(Sketcher.Constraint("Equal", 37, 45))
sketch5.addConstraint(Sketcher.Constraint("Equal", 41, 49))
sketch5.addConstraint(Sketcher.Constraint("Equal", 45, 53))
sketch5.addConstraint(Sketcher.Constraint("Equal", 49, 57))
sketch5.addConstraint(Sketcher.Constraint("Equal", 53, 61))
sketch5.addConstraint(Sketcher.Constraint("Equal", 57, 65))
sketch5.addConstraint(Sketcher.Constraint("Equal", 61, 69))
sketch5.addConstraint(Sketcher.Constraint("Symmetric", 1, 3, 7, 3, -1, 1))
sketch5.addConstraint(Sketcher.Constraint("Symmetric", 3, 3, 9, 3, -1, 1))
sketch5.addConstraint(Sketcher.Constraint("Symmetric", 25, 3, 49, 3, -1, 1))
sketch5.addConstraint(Sketcher.Constraint("Symmetric", 33, 3, 57, 3, -1, 1))
sketch5.addConstraint(Sketcher.Constraint("Symmetric", 41, 3, 65, 3, -1, 1))
sketch5.addConstraint(Sketcher.Constraint("Symmetric", 26, 2, 50, 2, -1, 1))
sketch5.addConstraint(Sketcher.Constraint("Symmetric", 30, 2, 54, 2, -1, 1))
sketch5.addConstraint(Sketcher.Constraint("Symmetric", 34, 2, 58, 2, -1, 1))
sketch5.addConstraint(Sketcher.Constraint("Symmetric", 35, 2, 59, 2, -1, 1))
sketch5.addConstraint(Sketcher.Constraint("Symmetric", 38, 2, 62, 2, -1, 1))
sketch5.addConstraint(Sketcher.Constraint("Symmetric", 39, 2, 63, 2, -1, 1))
sketch5.addConstraint(Sketcher.Constraint("Symmetric", 42, 2, 66, 2, -1, 1))
sketch5.addConstraint(Sketcher.Constraint("Symmetric", 43, 2, 67, 2, -1, 1))
sketch5.addConstraint(Sketcher.Constraint("Symmetric", 46, 2, 70, 2, -1, 1))
sketch5.addConstraint(Sketcher.Constraint("Symmetric", 47, 2, 71, 2, -1, 1))
sketch5.addConstraint(Sketcher.Constraint("Symmetric", 33, 3, 41, 3, -2))
sketch5.addConstraint(Sketcher.Constraint("Symmetric", 2, 2, 5, 1, -2))
sketch5.addConstraint(Sketcher.Constraint("Symmetric", 39, 2, 42, 2, -2))
sketch5.addConstraint(Sketcher.Constraint("Symmetric", 38, 2, 43, 2, -2))
sketch5.addConstraint(Sketcher.Constraint("Symmetric", 35, 2, 46, 2, -2))
sketch5.addConstraint(Sketcher.Constraint("Symmetric", 34, 2, 47, 2, -2))
sketch5.addConstraint(Sketcher.Constraint("Symmetric", 25, 1, 48, 2, -2))
sketch5.addConstraint(Sketcher.Constraint("Symmetric", 31, 2, 50, 2, -2))
sketch5.addConstraint(Sketcher.Constraint("Parallel", 0, 6))
sketch5.addConstraint(Sketcher.Constraint("Perpendicular", 18, 32))
sketch5.addConstraint(Sketcher.Constraint("Parallel", 32, 34))
sketch5.addConstraint(Sketcher.Constraint("Perpendicular", 34, 35))
sketch5.addConstraint(Sketcher.Constraint("Perpendicular", 35, 36))
sketch5.addConstraint(Sketcher.Constraint("Parallel", 36, 38))
sketch5.addConstraint(Sketcher.Constraint("Perpendicular", 38, 39))
sketch5.addConstraint(Sketcher.Constraint("Perpendicular", 20, 40))
sketch5.addConstraint(Sketcher.Constraint("Parallel", 40, 42))
sketch5.addConstraint(Sketcher.Constraint("Perpendicular", 43, 44))
sketch5.addConstraint(Sketcher.Constraint("Parallel", 44, 46))
sketch5.addConstraint(Sketcher.Constraint("Perpendicular", 39, 56))
sketch5.addConstraint(Sketcher.Constraint("Parallel", 56, 58))
sketch5.addConstraint(Sketcher.Constraint("Perpendicular", 59, 60))
sketch5.addConstraint(Sketcher.Constraint("Parallel", 60, 62))
sketch5.addConstraint(Sketcher.Constraint("Perpendicular", 47, 64))
sketch5.addConstraint(Sketcher.Constraint("Parallel", 64, 66))
sketch5.addConstraint(Sketcher.Constraint("Perpendicular", 67, 68))
sketch5.addConstraint(Sketcher.Constraint("Parallel", 68, 70))
sketch5.addConstraint(Sketcher.Constraint("Horizontal", 29, 2, 52, 2))
sketch5.addConstraint(Sketcher.Constraint("Horizontal", 28, 2, 53, 2))
sketch5.addConstraint(Sketcher.Constraint("Equal", 32, 34))
sketch5.addConstraint(Sketcher.Constraint("Equal", 36, 38))
sketch5.addConstraint(Sketcher.Constraint("Equal", 35, 39))
sketch5.addConstraint(Sketcher.Constraint("Angle", 0, Q("-60 deg")))
sketch5.addConstraint(Sketcher.Constraint("Radius", 1, Q("0.125 in")))
sketch5.addConstraint(Sketcher.Constraint("Radius", 13, Q("0.095 in")))
sketch5.addConstraint(Sketcher.Constraint("Radius", 25, Q("0.21875 in")))
sketch5.addConstraint(Sketcher.Constraint("DistanceX", 27, 2, 27, 1, Q("0.03 in")))
sketch5.addConstraint(Sketcher.Constraint("Distance", 35, Q("0.03 in")))
sketch5.addConstraint(Sketcher.Constraint("DistanceY", 3, 3, -1, 1, Q("0.599 in")))
sketch5.addConstraint(Sketcher.Constraint("DistanceX", 25, 3, -1, 1, Q("2.375 in")))
sketch5.addConstraint(Sketcher.Constraint("DistanceX", 33, 3, -1, 1, Q("1.1875 in")))
sketch5.addConstraint(Sketcher.Constraint("DistanceX", 24, 2, -1, 1, Q("2.368 in")))
sketch5.addConstraint(Sketcher.Constraint("DistanceY", 26, 2, -1, 1, Q("0.375 in")))
sketch5.addConstraint(Sketcher.Constraint("Radius", 29, Q("4.79425 mm")))
sketch5.addConstraint(Sketcher.Constraint("DistanceY", 32, 2, -1, 1, Q("49.312301 mm")))
sketch5.addConstraint(Sketcher.Constraint("DistanceX", 4, 2, 4, 1, Q("17.568307 mm")))
sketch5.addConstraint(Sketcher.Constraint("DistanceX", 32, 2, -1, 1, Q("34.882989 mm")))
sketch5.addConstraint(Sketcher.Constraint("DistanceX", 34, 2, -1, 1, Q("21.824708 mm")))
sketch5.setExpression("Constraints[166]", "Params.sketch5_radius")
sketch5.setExpression("Constraints[167]", "Params.sketch5_radius2")
sketch5.setExpression("Constraints[168]", "Params.sketch5_radius3")
sketch5.setExpression("Constraints[169]", "Params.sketch5_width")
sketch5.setExpression("Constraints[170]", "Params.sketch5_length")
pad2 = body.newObject("PartDesign::Pad", "Pad001")
pad2.Profile = sketch5
pad2.setExpression("Length", "Params.pad2_length")

doc.recompute()
